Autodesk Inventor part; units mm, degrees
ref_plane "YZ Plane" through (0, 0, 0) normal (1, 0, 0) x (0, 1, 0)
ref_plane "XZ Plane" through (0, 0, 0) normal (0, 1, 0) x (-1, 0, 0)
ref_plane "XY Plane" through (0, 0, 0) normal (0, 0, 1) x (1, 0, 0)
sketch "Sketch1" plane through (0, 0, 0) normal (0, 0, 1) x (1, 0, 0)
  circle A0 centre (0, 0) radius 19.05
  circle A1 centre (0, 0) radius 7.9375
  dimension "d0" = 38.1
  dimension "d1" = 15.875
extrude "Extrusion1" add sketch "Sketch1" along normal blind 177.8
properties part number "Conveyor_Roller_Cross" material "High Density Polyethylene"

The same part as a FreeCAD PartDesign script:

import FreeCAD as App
import Part
import Sketcher
Q = App.Units.Quantity

doc = App.newDocument("Part")
body = doc.addObject("PartDesign::Body", "Body")

# Sketch on XY plane
sketch1 = body.newObject("Sketcher::SketchObject", "Sketch")
sketch1.AttachmentSupport = (doc.getObject("XY_Plane"), [""])
sketch1.MapMode = "FlatFace"
sketch1.addGeometry([
    Part.Circle(App.Vector(0, 0, 0), App.Vector(0, 0, 1), 19),
    Part.Circle(App.Vector(0, 0, 0), App.Vector(0, 0, 1), 8),
], False)
sketch1.addConstraint([
    Sketcher.Constraint("Coincident", 0, 3, -1, 1),
    Sketcher.Constraint("Coincident", 1, 3, -1, 1),
    Sketcher.Constraint("Diameter", 0, Q("1.5 in")),
    Sketcher.Constraint("Diameter", 1, Q("0.625 in")),
])
pad1 = body.newObject("PartDesign::Pad", "Pad")
pad1.Profile = sketch1
pad1.Length = Q("7 in")

doc.recompute()
